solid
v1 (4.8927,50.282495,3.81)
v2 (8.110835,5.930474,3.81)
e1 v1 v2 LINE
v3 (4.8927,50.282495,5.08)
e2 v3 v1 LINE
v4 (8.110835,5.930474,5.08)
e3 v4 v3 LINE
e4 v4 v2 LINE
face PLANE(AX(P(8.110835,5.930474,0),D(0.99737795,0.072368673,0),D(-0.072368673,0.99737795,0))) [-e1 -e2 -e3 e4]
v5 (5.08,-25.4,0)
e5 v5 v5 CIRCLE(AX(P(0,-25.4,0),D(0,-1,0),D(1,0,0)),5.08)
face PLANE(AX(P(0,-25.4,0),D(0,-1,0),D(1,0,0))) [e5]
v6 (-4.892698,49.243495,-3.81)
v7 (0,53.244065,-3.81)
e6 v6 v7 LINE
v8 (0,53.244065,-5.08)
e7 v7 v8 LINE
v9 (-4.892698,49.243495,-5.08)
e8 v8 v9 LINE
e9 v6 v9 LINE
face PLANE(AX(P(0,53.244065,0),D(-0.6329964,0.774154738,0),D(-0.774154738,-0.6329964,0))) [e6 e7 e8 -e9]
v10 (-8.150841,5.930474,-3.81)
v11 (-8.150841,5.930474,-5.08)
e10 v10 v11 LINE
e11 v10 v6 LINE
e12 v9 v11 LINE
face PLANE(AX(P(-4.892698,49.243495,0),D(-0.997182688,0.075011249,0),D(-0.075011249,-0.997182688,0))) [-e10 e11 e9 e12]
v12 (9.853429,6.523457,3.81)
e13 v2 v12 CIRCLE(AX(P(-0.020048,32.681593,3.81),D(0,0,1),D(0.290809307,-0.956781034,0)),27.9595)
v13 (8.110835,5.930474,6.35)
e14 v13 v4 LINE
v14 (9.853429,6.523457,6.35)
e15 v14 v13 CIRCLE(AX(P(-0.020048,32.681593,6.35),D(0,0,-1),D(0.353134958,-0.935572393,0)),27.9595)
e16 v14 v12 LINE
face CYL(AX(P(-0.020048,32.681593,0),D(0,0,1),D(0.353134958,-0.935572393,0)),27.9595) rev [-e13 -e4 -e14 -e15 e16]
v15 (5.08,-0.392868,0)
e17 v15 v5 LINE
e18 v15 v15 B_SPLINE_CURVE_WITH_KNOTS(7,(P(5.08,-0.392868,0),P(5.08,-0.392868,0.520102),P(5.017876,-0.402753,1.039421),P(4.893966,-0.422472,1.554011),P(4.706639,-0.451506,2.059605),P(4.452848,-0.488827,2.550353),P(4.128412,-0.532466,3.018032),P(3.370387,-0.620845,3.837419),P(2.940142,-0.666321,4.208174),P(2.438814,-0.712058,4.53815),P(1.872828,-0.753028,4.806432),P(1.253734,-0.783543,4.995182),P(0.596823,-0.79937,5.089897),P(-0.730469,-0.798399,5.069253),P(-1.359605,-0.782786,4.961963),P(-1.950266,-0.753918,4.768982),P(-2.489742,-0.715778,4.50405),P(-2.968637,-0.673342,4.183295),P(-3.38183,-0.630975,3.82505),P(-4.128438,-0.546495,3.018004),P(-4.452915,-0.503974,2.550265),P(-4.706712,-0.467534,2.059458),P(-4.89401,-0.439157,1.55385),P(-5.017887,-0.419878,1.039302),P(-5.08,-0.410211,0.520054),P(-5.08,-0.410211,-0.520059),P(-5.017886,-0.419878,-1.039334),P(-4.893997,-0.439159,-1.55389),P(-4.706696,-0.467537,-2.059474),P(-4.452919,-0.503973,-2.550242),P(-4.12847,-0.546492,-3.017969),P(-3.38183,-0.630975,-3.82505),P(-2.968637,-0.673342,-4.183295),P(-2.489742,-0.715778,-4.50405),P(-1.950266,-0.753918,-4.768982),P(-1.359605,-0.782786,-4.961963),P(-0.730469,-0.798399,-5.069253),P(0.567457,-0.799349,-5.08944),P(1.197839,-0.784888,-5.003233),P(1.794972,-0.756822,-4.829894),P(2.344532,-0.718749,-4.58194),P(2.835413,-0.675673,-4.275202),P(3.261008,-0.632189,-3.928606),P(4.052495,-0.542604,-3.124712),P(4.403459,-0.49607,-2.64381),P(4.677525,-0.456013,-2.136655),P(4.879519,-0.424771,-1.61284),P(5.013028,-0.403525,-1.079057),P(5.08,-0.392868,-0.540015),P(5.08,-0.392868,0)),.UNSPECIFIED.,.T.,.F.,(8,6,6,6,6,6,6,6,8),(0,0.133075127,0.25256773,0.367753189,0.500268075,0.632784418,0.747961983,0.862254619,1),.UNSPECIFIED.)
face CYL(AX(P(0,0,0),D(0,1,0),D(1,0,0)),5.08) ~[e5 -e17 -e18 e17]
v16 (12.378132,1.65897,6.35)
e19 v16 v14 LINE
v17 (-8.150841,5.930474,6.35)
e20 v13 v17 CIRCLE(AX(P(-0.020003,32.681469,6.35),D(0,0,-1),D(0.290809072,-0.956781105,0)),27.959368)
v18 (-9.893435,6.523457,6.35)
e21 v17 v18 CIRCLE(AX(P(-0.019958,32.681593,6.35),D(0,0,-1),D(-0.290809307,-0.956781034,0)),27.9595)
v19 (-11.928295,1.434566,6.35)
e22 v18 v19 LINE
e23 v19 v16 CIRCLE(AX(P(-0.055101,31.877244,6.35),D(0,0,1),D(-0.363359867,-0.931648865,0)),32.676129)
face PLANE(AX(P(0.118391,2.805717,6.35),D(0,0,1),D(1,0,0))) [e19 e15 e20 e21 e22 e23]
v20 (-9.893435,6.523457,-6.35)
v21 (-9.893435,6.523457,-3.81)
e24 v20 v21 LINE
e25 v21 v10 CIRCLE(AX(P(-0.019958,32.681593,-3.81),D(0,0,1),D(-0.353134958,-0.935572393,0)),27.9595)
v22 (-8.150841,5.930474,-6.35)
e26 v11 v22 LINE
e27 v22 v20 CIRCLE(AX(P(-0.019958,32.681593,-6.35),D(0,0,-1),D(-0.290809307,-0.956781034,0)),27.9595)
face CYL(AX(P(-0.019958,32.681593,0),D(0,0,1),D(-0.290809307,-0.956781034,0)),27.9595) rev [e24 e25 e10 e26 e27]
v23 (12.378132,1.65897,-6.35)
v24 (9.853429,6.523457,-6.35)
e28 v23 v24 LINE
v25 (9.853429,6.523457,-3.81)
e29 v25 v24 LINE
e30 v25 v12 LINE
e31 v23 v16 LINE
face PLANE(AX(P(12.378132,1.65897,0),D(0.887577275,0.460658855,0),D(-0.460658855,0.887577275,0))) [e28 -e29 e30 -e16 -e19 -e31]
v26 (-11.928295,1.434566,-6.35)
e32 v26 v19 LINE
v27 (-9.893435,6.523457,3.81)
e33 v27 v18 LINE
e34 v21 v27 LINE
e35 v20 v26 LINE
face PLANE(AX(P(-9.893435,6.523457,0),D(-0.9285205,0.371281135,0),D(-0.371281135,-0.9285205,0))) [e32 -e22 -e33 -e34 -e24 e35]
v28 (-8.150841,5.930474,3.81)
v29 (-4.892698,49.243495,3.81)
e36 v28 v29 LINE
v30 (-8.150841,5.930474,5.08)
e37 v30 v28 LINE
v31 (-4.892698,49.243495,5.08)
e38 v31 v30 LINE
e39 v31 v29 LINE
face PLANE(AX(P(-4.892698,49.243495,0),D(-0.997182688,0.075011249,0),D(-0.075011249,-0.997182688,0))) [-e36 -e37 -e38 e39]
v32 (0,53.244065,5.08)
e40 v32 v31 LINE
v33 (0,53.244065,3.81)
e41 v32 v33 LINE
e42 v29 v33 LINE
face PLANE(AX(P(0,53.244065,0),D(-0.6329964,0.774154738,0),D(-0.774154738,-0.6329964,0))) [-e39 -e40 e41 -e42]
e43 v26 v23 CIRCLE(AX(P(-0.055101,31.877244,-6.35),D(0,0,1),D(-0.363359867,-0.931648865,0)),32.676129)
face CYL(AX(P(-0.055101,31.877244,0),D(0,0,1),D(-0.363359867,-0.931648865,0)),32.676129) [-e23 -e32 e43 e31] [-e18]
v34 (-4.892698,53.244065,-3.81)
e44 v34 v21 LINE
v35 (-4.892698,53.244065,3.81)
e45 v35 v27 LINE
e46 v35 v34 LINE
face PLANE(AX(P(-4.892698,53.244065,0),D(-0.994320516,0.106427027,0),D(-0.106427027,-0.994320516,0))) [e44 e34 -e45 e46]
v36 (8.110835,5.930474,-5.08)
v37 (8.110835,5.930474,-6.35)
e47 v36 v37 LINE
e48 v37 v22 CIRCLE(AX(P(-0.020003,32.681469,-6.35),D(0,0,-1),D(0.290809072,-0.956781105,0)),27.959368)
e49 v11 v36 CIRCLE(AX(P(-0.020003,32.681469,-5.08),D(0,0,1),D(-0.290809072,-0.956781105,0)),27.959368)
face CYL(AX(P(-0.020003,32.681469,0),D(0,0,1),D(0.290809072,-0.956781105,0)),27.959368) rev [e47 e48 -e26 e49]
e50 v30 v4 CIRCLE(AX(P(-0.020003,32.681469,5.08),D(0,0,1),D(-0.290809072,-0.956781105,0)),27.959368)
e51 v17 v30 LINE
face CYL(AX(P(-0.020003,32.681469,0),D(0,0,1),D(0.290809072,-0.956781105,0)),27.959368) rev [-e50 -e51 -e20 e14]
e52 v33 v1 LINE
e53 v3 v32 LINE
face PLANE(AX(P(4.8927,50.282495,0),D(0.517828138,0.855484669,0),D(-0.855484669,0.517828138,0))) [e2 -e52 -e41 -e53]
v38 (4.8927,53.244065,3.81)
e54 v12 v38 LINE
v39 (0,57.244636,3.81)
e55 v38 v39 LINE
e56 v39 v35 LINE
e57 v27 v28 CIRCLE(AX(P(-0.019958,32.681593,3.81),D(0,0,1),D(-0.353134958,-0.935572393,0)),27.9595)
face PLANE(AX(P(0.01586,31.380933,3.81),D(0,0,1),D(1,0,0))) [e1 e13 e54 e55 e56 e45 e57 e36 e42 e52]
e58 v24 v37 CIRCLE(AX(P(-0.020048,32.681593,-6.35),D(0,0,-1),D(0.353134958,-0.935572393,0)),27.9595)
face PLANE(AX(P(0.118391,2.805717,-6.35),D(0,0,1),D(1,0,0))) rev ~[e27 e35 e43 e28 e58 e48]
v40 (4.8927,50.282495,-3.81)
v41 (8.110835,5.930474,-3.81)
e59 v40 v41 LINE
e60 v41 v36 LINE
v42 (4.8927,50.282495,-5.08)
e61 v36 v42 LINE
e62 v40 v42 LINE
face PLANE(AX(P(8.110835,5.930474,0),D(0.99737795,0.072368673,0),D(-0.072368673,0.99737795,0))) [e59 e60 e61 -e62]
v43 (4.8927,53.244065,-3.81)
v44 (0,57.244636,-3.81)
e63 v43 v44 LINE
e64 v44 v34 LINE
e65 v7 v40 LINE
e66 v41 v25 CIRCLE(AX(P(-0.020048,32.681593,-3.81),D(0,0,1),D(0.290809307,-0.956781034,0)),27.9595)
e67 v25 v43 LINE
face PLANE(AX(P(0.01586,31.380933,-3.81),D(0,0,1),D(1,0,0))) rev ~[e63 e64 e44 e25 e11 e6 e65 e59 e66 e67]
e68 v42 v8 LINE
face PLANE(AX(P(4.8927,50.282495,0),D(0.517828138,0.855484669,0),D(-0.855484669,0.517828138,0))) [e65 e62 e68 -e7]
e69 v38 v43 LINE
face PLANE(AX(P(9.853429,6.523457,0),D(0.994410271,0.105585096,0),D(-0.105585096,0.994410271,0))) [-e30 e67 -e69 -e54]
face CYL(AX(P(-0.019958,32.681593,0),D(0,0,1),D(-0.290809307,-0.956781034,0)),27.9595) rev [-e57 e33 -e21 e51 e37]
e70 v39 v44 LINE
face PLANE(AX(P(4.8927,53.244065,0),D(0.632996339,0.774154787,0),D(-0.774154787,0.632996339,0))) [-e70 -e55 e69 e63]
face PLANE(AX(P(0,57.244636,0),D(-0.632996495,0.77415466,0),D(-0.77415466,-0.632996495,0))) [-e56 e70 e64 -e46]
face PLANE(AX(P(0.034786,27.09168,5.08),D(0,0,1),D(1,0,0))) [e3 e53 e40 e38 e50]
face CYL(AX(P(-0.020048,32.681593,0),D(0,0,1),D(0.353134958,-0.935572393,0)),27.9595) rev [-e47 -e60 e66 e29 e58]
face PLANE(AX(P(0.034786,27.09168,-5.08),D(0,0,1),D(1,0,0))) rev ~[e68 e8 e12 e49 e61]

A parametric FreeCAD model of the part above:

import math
import FreeCAD as App
import Part
import Sketcher
Q = App.Units.Quantity

doc = App.newDocument("Part")
body = doc.addObject("PartDesign::Body", "Body")

# Sketch on XY plane
sketch1 = doc.addObject("Sketcher::SketchObject", "Sketch")
body.addObject(sketch1)
sketch1.AttachmentSupport = (doc.XY_Plane, [""])
sketch1.MapMode = "FlatFace"
sketch1.addGeometry([
    Part.ArcOfCircle(Part.Circle(App.Vector(0, 32.7, 0), App.Vector(0, 0, 1), 28), math.radians(-110.68), math.radians(-106.91)),  # 0
    Part.LineSegment(App.Vector(-9.9, 6.5, 0), App.Vector(-11.9, 1.4, 0)),  # 1
    Part.ArcOfCircle(Part.Circle(App.Vector(-0.1, 31.9, 0), App.Vector(0, 0, 1), 32.7), math.radians(-111), math.radians(-68)),  # 2
    Part.LineSegment(App.Vector(12.4, 1.7, 0), App.Vector(9.9, 6.5, 0)),  # 3
    Part.ArcOfCircle(Part.Circle(App.Vector(0, 32.7, 0), App.Vector(0, 0, 1), 28), math.radians(-73.09), math.radians(-69.32)),  # 4
    Part.ArcOfCircle(Part.Circle(App.Vector(0, 32.7, 0), App.Vector(0, 0, 1), 28), math.radians(-107), math.radians(-73)),  # 5
], False)
sketch1.addConstraint([
    Sketcher.Constraint("Coincident", 0, 1, 1, 1),
    Sketcher.Constraint("Coincident", 1, 2, 2, 1),
    Sketcher.Constraint("Coincident", 2, 2, 3, 1),
    Sketcher.Constraint("Coincident", 3, 2, 4, 2),
    Sketcher.Constraint("Tangent", 4, 1, 5, 2),
    Sketcher.Constraint("Tangent", 5, 1, 0, 2),
    Sketcher.Constraint("Equal", 0, 4),
    Sketcher.Constraint("Horizontal", 0, 1, 3, 2),
    Sketcher.Constraint("Horizontal", 4, 1, 5, 1),
    Sketcher.Constraint("Radius", 0, 27.9595),
    Sketcher.Constraint("Radius", 2, 32.676129),
    Sketcher.Constraint("Radius", 5, 27.959368),
    Sketcher.Constraint("DistanceX", 2, 3, -1, 1, 0.055101),
    Sketcher.Constraint("DistanceX", 2, 3, 5, 3, 0.035098),
    Sketcher.Constraint("DistanceY", 2, 2, 5, 3, 31.022499),
    Sketcher.Constraint("DistanceY", -1, 1, 5, 3, 32.681469),
    Sketcher.Constraint("DistanceX", -1, 1, 3, 2, 9.853429),
    Sketcher.Constraint("DistanceX", 5, 1, -1, 1, 8.150841),
    Sketcher.Constraint("DistanceY", 2, 3, 0, 3, 0.804349),
    Sketcher.Constraint("DistanceX", 1, 2, 0, 1, 2.03486),
])
pad1 = doc.addObject("PartDesign::Pad", "Pad")
body.addObject(pad1)
pad1.Profile = sketch1
pad1.Length = Q("0.5 in")
pad1.Midplane = True

# Sketch on XZ plane
sketch2 = doc.addObject("Sketcher::SketchObject", "Sketch001")
body.addObject(sketch2)
sketch2.AttachmentSupport = (doc.XZ_Plane, [""])
sketch2.MapMode = "FlatFace"
sketch2.addGeometry(Part.Circle(App.Vector(0, 0, 0), App.Vector(0, 0, 1), 5), False)
sketch2.addConstraint([
    Sketcher.Constraint("Coincident", 0, 3, -1, 1),
    Sketcher.Constraint("Diameter", 0, Q("0.4 in")),
])
pad2 = doc.addObject("PartDesign::Pad", "Pad001")
body.addObject(pad2)
pad2.Profile = sketch2
pad2.Length = Q("1 in")

# Sketch on XY plane
sketch3 = doc.addObject("Sketcher::SketchObject", "Sketch002")
body.addObject(sketch3)
sketch3.AttachmentSupport = (doc.XY_Plane, [""])
sketch3.MapMode = "FlatFace"
sketch3.addGeometry([
    Part.LineSegment(App.Vector(-4.9, 53.2, 0), App.Vector(-9.9, 6.5, 0)),  # 0
    Part.ArcOfCircle(Part.Circle(App.Vector(0, 32.7, 0), App.Vector(0, 0, 1), 28), math.radians(-110.68), math.radians(-106.91)),  # 1
    Part.LineSegment(App.Vector(-8.2, 5.9, 0), App.Vector(-4.9, 49.2, 0)),  # 2
    Part.LineSegment(App.Vector(-4.9, 49.2, 0), App.Vector(0, 53.2, 0)),  # 3
    Part.LineSegment(App.Vector(0, 53.2, 0), App.Vector(4.9, 50.3, 0)),  # 4
    Part.LineSegment(App.Vector(4.9, 50.3, 0), App.Vector(8.1, 5.9, 0)),  # 5
    Part.ArcOfCircle(Part.Circle(App.Vector(0, 32.7, 0), App.Vector(0, 0, 1), 28), math.radians(-73.09), math.radians(-69.32)),  # 6
    Part.LineSegment(App.Vector(9.9, 6.5, 0), App.Vector(4.9, 53.2, 0)),  # 7
    Part.LineSegment(App.Vector(4.9, 53.2, 0), App.Vector(0, 57.2, 0)),  # 8
    Part.LineSegment(App.Vector(0, 57.2, 0), App.Vector(-4.9, 53.2, 0)),  # 9
], False)
sketch3.addConstraint([
    Sketcher.Constraint("Coincident", 0, 2, 1, 1),
    Sketcher.Constraint("Coincident", 1, 2, 2, 1),
    Sketcher.Constraint("Coincident", 2, 2, 3, 1),
    Sketcher.Constraint("Coincident", 3, 2, 4, 1),
    Sketcher.Constraint("Coincident", 4, 2, 5, 1),
    Sketcher.Constraint("Coincident", 5, 2, 6, 1),
    Sketcher.Constraint("Coincident", 6, 2, 7, 1),
    Sketcher.Constraint("Coincident", 7, 2, 8, 1),
    Sketcher.Constraint("Coincident", 8, 2, 9, 1),
    Sketcher.Constraint("Coincident", 9, 2, 0, 1),
    Sketcher.Constraint("Equal", 1, 6),
    Sketcher.Constraint("Symmetric", 7, 2, 9, 2, -2),
    Sketcher.Constraint("PointOnObject", 3, 2, -2),
    Sketcher.Constraint("PointOnObject", 8, 2, -2),
    Sketcher.Constraint("Parallel", 3, 9),
    Sketcher.Constraint("Horizontal", 1, 3, 6, 3),
    Sketcher.Constraint("Horizontal", 1, 2, 5, 2),
    Sketcher.Constraint("Horizontal", 0, 2, 6, 2),
    Sketcher.Constraint("Horizontal", 3, 2, 7, 2),
    Sketcher.Constraint("Vertical", 4, 2, 7, 2),
    Sketcher.Constraint("Vertical", 2, 2, 9, 2),
    Sketcher.Constraint("Radius", 1, 27.9595),
    Sketcher.Constraint("DistanceY", 4, 2, 8, 2, Q("0.2741 in")),
    Sketcher.Constraint("DistanceX", 2, 2, -1, 1, 4.892698),
    Sketcher.Constraint("DistanceY", 2, 2, 4, 2, 1.039),
    Sketcher.Constraint("Distance", 5, 44.46862),
    Sketcher.Constraint("Distance", 7, 46.983232),
    Sketcher.Constraint("DistanceX", 1, 3, -1, 1, 0.019958),
    Sketcher.Constraint("DistanceX", 1, 2, -1, 1, 8.150841),
    Sketcher.Constraint("DistanceX", -1, 1, 6, 2, 9.853429),
    Sketcher.Constraint("DistanceY", -1, 1, 1, 3, 32.681593),
])
pad3 = doc.addObject("PartDesign::Pad", "Pad002")
body.addObject(pad3)
pad3.Profile = sketch3
pad3.Length = Q("0.3 in")
pad3.Midplane = True

# Sketch on XY plane
sketch4 = doc.addObject("Sketcher::SketchObject", "Sketch003")
body.addObject(sketch4)
sketch4.AttachmentSupport = (doc.XY_Plane, [""])
sketch4.MapMode = "FlatFace"
sketch4.addGeometry([
    Part.LineSegment(App.Vector(-5, 49, 0), App.Vector(-8, 6, 0)),  # 0
    Part.ArcOfCircle(Part.Circle(App.Vector(0, 33, 0), App.Vector(0, 0, 1), 28), math.radians(-107), math.radians(-73)),  # 1
    Part.LineSegment(App.Vector(8, 6, 0), App.Vector(5, 50, 0)),  # 2
    Part.LineSegment(App.Vector(5, 50, 0), App.Vector(0, 53, 0)),  # 3
    Part.LineSegment(App.Vector(0, 53, 0), App.Vector(-5, 49, 0)),  # 4
], False)
sketch4.addConstraint([
    Sketcher.Constraint("Coincident", 0, 2, 1, 1),
    Sketcher.Constraint("Coincident", 1, 2, 2, 1),
    Sketcher.Constraint("Coincident", 2, 2, 3, 1),
    Sketcher.Constraint("Coincident", 3, 2, 4, 1),
    Sketcher.Constraint("Coincident", 4, 2, 0, 1),
    Sketcher.Constraint("PointOnObject", 3, 2, -2),
    Sketcher.Constraint("Horizontal", 0, 2, 1, 2),
    Sketcher.Constraint("Radius", 1, 27.959368),
    Sketcher.Constraint("DistanceX", -1, 1, 2, 2, 4.8927),
    Sketcher.Constraint("DistanceX", 4, 2, -1, 1, 4.892698),
    Sketcher.Constraint("DistanceY", 4, 2, 2, 2, 1.039),
    Sketcher.Constraint("Distance", 2, 44.46862),
    Sketcher.Constraint("Distance", 4, 6.320052),
    Sketcher.Constraint("DistanceY", -1, 1, 1, 3, 32.681469),
    Sketcher.Constraint("DistanceX", 0, 2, -1, 1, 8.150841),
    Sketcher.Constraint("DistanceY", 1, 2, 2, 2, 44.352021),
])
pad4 = doc.addObject("PartDesign::Pad", "Pad003")
body.addObject(pad4)
pad4.Profile = sketch4
pad4.Length = Q("0.4 in")
pad4.Midplane = True

doc.recompute()
